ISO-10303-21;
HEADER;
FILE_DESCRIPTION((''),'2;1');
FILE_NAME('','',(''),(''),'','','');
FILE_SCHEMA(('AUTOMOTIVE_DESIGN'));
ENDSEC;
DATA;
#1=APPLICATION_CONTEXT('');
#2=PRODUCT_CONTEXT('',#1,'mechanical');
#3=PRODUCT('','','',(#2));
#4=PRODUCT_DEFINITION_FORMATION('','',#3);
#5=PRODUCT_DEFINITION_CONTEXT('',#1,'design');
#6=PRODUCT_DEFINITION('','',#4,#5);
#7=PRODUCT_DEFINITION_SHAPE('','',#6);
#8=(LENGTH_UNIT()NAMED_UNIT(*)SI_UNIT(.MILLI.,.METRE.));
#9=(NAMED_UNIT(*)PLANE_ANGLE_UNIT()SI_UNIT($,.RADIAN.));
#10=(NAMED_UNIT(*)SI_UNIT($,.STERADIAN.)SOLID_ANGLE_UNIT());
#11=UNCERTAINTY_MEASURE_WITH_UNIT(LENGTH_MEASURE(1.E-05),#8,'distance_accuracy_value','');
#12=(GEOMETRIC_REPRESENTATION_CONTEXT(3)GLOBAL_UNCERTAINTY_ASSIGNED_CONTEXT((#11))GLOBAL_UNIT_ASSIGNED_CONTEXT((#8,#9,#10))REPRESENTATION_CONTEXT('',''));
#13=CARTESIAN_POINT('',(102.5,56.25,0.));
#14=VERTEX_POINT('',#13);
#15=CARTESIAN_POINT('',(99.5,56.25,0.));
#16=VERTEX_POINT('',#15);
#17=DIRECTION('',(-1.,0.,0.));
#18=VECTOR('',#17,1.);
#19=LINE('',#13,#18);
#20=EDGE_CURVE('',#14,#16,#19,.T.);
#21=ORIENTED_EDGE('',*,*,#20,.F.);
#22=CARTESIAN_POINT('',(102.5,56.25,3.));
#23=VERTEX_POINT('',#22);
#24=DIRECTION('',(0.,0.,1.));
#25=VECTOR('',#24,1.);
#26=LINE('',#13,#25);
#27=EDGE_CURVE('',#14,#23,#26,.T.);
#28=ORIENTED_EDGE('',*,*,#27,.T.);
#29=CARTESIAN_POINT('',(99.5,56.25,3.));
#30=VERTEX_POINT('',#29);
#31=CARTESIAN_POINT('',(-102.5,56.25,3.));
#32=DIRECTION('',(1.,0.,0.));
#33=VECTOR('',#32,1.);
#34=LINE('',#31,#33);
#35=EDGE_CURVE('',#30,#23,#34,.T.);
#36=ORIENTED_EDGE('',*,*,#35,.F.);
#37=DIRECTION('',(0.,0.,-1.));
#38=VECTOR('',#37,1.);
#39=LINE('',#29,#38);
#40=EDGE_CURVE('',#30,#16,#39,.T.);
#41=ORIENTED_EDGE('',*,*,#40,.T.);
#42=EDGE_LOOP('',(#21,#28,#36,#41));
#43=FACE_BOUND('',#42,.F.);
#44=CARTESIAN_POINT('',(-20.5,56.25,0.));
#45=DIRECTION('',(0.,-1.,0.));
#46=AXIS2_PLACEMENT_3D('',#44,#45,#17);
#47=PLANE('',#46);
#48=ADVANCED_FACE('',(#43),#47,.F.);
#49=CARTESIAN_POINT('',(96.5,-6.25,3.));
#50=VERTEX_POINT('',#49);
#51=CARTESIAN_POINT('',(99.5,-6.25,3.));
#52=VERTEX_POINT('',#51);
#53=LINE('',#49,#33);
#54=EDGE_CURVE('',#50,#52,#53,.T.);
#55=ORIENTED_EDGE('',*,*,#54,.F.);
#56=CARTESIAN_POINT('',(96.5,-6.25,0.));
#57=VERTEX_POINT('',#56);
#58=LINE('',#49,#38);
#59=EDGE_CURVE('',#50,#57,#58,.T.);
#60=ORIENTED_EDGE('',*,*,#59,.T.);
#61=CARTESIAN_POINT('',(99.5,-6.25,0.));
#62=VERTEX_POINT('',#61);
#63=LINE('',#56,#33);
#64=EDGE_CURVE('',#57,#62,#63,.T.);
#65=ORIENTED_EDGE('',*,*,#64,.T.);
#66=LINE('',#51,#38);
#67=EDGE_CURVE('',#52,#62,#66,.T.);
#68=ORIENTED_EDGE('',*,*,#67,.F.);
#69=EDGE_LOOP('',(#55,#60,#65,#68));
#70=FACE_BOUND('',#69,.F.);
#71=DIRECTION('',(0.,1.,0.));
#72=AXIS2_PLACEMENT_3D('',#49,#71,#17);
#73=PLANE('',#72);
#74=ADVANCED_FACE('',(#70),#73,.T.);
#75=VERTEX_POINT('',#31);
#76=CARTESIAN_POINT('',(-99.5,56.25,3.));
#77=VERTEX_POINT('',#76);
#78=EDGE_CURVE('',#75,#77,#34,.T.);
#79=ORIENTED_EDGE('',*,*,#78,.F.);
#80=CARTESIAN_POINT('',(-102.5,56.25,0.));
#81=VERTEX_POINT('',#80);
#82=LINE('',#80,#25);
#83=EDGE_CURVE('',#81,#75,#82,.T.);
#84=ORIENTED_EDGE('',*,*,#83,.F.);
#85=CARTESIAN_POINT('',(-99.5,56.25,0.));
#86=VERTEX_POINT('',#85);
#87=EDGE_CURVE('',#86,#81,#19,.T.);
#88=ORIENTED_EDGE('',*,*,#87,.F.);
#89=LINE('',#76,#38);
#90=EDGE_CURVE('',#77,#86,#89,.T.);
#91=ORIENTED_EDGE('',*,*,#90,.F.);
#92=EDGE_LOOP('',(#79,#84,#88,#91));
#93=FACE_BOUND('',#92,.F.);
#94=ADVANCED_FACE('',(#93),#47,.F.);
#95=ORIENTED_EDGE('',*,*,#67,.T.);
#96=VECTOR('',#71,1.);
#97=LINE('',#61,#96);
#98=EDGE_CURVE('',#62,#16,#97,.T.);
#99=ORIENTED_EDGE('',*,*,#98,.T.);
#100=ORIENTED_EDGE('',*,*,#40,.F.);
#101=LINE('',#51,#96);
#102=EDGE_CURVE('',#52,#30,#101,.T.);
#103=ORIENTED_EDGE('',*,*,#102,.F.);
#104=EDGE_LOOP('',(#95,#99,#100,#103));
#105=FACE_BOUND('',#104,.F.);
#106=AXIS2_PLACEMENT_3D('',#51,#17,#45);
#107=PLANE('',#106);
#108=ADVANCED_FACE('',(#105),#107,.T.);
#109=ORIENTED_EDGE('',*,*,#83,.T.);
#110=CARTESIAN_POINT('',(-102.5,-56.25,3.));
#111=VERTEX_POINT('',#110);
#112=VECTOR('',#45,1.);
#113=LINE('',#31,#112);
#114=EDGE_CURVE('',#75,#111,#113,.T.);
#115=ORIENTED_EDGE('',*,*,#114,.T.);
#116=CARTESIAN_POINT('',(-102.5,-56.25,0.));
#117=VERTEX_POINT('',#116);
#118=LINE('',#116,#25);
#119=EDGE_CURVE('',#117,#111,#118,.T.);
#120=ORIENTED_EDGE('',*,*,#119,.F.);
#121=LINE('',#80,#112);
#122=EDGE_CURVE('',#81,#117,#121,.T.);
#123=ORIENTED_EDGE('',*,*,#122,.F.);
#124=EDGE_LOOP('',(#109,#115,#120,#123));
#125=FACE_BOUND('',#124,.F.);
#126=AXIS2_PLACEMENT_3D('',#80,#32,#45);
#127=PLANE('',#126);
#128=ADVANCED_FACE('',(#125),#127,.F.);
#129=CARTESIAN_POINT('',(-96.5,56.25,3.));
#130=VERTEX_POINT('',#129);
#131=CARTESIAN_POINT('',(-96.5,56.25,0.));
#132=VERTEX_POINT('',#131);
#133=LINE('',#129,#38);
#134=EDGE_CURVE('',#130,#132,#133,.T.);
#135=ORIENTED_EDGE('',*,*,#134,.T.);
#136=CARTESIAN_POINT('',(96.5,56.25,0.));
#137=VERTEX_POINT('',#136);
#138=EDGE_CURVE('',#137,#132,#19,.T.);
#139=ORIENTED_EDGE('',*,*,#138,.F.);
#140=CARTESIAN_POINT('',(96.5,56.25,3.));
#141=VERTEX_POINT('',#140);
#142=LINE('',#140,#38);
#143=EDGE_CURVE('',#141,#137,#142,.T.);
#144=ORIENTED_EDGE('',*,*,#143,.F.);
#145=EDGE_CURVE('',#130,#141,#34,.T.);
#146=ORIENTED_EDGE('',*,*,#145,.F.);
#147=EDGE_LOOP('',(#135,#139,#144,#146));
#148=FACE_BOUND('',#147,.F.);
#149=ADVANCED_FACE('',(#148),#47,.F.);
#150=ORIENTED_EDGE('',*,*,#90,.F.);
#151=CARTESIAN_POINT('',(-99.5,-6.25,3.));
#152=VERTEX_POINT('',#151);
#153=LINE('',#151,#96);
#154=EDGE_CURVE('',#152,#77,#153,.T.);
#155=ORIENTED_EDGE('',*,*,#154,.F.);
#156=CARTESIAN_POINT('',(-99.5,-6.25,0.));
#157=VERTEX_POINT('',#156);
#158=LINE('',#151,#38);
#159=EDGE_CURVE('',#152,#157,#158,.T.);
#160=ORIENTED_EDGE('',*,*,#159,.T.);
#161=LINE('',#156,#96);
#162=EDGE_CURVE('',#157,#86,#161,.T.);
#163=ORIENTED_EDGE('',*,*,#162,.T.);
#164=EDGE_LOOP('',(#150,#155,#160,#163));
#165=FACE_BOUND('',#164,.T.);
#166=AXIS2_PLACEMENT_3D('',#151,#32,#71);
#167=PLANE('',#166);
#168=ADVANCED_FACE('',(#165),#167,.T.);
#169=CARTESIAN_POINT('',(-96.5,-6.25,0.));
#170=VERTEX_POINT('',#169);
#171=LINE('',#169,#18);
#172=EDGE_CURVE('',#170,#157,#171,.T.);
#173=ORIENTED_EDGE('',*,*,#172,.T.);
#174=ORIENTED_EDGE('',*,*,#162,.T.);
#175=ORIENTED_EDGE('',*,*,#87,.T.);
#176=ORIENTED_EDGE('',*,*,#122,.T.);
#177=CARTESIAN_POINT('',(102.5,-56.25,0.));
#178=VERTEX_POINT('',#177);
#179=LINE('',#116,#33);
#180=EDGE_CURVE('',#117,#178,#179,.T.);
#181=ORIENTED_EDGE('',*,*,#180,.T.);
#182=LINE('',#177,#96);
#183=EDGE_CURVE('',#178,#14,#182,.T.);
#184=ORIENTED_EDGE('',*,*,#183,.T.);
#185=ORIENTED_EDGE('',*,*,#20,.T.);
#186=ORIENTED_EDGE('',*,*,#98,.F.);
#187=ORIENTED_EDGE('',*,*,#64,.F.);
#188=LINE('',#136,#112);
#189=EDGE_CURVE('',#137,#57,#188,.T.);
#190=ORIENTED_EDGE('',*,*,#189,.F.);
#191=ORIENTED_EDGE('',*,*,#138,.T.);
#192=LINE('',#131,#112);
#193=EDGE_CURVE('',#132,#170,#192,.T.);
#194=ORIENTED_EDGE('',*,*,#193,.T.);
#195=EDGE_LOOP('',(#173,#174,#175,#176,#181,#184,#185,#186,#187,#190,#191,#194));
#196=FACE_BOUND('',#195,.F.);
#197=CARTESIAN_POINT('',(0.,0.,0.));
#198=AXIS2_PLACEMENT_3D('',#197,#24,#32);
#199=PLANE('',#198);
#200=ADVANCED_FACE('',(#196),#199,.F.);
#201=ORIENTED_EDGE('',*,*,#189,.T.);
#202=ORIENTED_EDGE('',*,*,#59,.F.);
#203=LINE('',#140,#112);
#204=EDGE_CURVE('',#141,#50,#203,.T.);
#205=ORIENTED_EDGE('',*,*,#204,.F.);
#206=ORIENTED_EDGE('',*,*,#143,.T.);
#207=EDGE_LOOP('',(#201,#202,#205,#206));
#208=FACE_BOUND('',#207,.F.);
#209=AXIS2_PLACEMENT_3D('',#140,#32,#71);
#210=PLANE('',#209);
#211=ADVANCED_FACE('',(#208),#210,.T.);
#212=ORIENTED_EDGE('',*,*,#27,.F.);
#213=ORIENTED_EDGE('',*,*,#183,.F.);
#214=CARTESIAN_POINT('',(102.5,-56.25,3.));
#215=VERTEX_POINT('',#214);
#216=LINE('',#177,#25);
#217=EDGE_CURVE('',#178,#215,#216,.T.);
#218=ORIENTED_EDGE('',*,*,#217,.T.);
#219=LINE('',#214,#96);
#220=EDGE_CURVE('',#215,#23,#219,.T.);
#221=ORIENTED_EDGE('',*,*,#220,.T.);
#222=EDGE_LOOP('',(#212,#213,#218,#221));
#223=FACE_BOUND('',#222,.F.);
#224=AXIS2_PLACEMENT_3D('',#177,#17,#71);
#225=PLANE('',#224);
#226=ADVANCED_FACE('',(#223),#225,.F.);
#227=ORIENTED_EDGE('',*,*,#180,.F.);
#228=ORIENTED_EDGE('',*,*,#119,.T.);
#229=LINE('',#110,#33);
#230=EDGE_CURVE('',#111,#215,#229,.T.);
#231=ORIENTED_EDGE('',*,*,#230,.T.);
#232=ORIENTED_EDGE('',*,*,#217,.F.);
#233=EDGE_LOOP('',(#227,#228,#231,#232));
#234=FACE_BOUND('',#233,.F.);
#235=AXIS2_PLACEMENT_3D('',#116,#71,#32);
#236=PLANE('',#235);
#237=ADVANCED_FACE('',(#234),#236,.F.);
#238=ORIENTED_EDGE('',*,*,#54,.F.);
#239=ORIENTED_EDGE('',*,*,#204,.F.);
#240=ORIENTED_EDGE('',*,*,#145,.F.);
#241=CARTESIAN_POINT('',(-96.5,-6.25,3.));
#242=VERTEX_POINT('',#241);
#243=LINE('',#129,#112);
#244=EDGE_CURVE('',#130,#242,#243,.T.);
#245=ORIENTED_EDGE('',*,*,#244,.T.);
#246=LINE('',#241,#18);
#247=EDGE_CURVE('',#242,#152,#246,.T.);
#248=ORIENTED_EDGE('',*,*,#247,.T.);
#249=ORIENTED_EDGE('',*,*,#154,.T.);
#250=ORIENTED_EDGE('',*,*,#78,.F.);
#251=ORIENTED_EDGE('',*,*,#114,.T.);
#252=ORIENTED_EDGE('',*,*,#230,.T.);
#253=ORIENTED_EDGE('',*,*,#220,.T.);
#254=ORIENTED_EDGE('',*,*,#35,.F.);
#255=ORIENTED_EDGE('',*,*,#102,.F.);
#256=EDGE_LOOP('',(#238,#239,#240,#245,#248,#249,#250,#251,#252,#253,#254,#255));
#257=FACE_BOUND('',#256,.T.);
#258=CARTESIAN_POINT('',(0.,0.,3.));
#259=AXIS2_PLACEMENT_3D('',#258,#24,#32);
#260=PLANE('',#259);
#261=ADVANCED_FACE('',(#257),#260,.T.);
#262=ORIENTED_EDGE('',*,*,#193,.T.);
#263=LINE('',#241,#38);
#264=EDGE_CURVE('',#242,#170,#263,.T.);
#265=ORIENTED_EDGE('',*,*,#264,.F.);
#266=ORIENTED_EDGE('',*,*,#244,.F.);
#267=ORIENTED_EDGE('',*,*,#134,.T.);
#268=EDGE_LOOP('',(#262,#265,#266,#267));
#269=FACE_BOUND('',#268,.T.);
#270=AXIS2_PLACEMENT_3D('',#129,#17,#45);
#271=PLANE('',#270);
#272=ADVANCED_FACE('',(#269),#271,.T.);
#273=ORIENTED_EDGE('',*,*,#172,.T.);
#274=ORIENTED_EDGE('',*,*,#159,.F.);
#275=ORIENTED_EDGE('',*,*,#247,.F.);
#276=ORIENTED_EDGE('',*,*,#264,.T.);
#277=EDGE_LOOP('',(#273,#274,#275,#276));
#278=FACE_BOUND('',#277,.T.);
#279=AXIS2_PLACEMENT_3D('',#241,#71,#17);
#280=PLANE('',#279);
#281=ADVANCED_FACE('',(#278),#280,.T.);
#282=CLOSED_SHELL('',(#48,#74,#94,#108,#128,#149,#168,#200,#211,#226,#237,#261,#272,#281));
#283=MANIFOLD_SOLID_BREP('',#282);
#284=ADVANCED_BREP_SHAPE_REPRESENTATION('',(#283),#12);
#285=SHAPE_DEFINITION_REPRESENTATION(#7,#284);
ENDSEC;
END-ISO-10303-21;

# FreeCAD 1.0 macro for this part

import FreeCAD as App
import Part
import Sketcher
Q = App.Units.Quantity

doc = App.newDocument("Part")
params = doc.addObject("Spreadsheet::Sheet", "Params")
for row, (alias, value) in enumerate([
    ("sketch1_width", "205 mm"),
    ("sketch1_height", "112.5 mm"),
    ("pad1_length", "3 mm"),
    ("sketch2_width", "3 mm"),
    ("sketch2_height", "62.5 mm"),
    ("pocket1_length", "3 mm"),
], start=1):
    params.set(f"A{row}", alias)
    params.set(f"B{row}", "=" + value)
    params.setAlias(f"B{row}", alias)

body = doc.addObject("PartDesign::Body", "Body")

# Sketch on XY plane
sketch1 = body.newObject("Sketcher::SketchObject", "Sketch")
sketch1.AttachmentSupport = (doc.getObject("XY_Plane"), [""])
sketch1.MapMode = "FlatFace"
sketch1.addGeometry([
    Part.LineSegment(App.Vector(-102, 56, 0), App.Vector(-102, -56, 0)),
    Part.LineSegment(App.Vector(-102, -56, 0), App.Vector(102, -56, 0)),
    Part.LineSegment(App.Vector(102, -56, 0), App.Vector(102, 56, 0)),
    Part.LineSegment(App.Vector(102, 56, 0), App.Vector(-102, 56, 0)),
], False)
sketch1.addConstraint([
    Sketcher.Constraint("Coincident", 0, 2, 1, 1),
    Sketcher.Constraint("Coincident", 1, 2, 2, 1),
    Sketcher.Constraint("Coincident", 2, 2, 3, 1),
    Sketcher.Constraint("Coincident", 3, 2, 0, 1),
    Sketcher.Constraint("Vertical", 0),
    Sketcher.Constraint("Horizontal", 1),
    Sketcher.Constraint("Vertical", 2),
    Sketcher.Constraint("Horizontal", 3),
    Sketcher.Constraint("Symmetric", 0, 2, 2, 2, -1, 1),
    Sketcher.Constraint("DistanceX", 1, 1, 1, 2, Q("205 mm")),
    Sketcher.Constraint("DistanceY", 0, 2, 0, 1, Q("112.5 mm")),
])
sketch1.setExpression("Constraints[9]", "Params.sketch1_width")
sketch1.setExpression("Constraints[10]", "Params.sketch1_height")
pad1 = body.newObject("PartDesign::Pad", "Pad")
pad1.Profile = sketch1
pad1.setExpression("Length", "Params.pad1_length")

# Sketch on XY plane
sketch2 = body.newObject("Sketcher::SketchObject", "Sketch001")
sketch2.AttachmentSupport = (doc.getObject("XY_Plane"), [""])
sketch2.MapMode = "FlatFace"
sketch2.AttachmentOffset = App.Placement(App.Vector(0, 0, 3), App.Rotation())
sketch2.addGeometry([
    Part.LineSegment(App.Vector(-96.5, 56.2, 0), App.Vector(-99.5, 56.2, 0)),
    Part.LineSegment(App.Vector(-99.5, 56.2, 0), App.Vector(-99.5, -6.2, 0)),
    Part.LineSegment(App.Vector(-99.5, -6.2, 0), App.Vector(-96.5, -6.2, 0)),
    Part.LineSegment(App.Vector(-96.5, -6.2, 0), App.Vector(-96.5, 56.2, 0)),
], False)
sketch2.addConstraint([
    Sketcher.Constraint("Coincident", 0, 2, 1, 1),
    Sketcher.Constraint("Coincident", 1, 2, 2, 1),
    Sketcher.Constraint("Coincident", 2, 2, 3, 1),
    Sketcher.Constraint("Coincident", 3, 2, 0, 1),
    Sketcher.Constraint("Horizontal", 0),
    Sketcher.Constraint("Vertical", 1),
    Sketcher.Constraint("Horizontal", 2),
    Sketcher.Constraint("Vertical", 3),
    Sketcher.Constraint("DistanceX", 0, 2, 0, 1, Q("3 mm")),
    Sketcher.Constraint("DistanceY", 1, 2, 1, 1, Q("62.5 mm")),
    Sketcher.Constraint("DistanceX", 0, 2, -1, 1, Q("99.5 mm")),
    Sketcher.Constraint("DistanceY", -1, 1, 0, 2, Q("56.25 mm")),
])
sketch2.setExpression("Constraints[8]", "Params.sketch2_width")
sketch2.setExpression("Constraints[9]", "Params.sketch2_height")
pocket1 = body.newObject("PartDesign::Pocket", "Pocket")
pocket1.Profile = sketch2
pocket1.setExpression("Length", "Params.pocket1_length")
doc.recompute()

mirrored = body.newObject("PartDesign::Mirrored", "Mirrored")
mirrored.Originals = [pocket1]
mirrored.MirrorPlane = (doc.getObject("YZ_Plane"), [""])
body.Tip = mirrored

doc.recompute()
